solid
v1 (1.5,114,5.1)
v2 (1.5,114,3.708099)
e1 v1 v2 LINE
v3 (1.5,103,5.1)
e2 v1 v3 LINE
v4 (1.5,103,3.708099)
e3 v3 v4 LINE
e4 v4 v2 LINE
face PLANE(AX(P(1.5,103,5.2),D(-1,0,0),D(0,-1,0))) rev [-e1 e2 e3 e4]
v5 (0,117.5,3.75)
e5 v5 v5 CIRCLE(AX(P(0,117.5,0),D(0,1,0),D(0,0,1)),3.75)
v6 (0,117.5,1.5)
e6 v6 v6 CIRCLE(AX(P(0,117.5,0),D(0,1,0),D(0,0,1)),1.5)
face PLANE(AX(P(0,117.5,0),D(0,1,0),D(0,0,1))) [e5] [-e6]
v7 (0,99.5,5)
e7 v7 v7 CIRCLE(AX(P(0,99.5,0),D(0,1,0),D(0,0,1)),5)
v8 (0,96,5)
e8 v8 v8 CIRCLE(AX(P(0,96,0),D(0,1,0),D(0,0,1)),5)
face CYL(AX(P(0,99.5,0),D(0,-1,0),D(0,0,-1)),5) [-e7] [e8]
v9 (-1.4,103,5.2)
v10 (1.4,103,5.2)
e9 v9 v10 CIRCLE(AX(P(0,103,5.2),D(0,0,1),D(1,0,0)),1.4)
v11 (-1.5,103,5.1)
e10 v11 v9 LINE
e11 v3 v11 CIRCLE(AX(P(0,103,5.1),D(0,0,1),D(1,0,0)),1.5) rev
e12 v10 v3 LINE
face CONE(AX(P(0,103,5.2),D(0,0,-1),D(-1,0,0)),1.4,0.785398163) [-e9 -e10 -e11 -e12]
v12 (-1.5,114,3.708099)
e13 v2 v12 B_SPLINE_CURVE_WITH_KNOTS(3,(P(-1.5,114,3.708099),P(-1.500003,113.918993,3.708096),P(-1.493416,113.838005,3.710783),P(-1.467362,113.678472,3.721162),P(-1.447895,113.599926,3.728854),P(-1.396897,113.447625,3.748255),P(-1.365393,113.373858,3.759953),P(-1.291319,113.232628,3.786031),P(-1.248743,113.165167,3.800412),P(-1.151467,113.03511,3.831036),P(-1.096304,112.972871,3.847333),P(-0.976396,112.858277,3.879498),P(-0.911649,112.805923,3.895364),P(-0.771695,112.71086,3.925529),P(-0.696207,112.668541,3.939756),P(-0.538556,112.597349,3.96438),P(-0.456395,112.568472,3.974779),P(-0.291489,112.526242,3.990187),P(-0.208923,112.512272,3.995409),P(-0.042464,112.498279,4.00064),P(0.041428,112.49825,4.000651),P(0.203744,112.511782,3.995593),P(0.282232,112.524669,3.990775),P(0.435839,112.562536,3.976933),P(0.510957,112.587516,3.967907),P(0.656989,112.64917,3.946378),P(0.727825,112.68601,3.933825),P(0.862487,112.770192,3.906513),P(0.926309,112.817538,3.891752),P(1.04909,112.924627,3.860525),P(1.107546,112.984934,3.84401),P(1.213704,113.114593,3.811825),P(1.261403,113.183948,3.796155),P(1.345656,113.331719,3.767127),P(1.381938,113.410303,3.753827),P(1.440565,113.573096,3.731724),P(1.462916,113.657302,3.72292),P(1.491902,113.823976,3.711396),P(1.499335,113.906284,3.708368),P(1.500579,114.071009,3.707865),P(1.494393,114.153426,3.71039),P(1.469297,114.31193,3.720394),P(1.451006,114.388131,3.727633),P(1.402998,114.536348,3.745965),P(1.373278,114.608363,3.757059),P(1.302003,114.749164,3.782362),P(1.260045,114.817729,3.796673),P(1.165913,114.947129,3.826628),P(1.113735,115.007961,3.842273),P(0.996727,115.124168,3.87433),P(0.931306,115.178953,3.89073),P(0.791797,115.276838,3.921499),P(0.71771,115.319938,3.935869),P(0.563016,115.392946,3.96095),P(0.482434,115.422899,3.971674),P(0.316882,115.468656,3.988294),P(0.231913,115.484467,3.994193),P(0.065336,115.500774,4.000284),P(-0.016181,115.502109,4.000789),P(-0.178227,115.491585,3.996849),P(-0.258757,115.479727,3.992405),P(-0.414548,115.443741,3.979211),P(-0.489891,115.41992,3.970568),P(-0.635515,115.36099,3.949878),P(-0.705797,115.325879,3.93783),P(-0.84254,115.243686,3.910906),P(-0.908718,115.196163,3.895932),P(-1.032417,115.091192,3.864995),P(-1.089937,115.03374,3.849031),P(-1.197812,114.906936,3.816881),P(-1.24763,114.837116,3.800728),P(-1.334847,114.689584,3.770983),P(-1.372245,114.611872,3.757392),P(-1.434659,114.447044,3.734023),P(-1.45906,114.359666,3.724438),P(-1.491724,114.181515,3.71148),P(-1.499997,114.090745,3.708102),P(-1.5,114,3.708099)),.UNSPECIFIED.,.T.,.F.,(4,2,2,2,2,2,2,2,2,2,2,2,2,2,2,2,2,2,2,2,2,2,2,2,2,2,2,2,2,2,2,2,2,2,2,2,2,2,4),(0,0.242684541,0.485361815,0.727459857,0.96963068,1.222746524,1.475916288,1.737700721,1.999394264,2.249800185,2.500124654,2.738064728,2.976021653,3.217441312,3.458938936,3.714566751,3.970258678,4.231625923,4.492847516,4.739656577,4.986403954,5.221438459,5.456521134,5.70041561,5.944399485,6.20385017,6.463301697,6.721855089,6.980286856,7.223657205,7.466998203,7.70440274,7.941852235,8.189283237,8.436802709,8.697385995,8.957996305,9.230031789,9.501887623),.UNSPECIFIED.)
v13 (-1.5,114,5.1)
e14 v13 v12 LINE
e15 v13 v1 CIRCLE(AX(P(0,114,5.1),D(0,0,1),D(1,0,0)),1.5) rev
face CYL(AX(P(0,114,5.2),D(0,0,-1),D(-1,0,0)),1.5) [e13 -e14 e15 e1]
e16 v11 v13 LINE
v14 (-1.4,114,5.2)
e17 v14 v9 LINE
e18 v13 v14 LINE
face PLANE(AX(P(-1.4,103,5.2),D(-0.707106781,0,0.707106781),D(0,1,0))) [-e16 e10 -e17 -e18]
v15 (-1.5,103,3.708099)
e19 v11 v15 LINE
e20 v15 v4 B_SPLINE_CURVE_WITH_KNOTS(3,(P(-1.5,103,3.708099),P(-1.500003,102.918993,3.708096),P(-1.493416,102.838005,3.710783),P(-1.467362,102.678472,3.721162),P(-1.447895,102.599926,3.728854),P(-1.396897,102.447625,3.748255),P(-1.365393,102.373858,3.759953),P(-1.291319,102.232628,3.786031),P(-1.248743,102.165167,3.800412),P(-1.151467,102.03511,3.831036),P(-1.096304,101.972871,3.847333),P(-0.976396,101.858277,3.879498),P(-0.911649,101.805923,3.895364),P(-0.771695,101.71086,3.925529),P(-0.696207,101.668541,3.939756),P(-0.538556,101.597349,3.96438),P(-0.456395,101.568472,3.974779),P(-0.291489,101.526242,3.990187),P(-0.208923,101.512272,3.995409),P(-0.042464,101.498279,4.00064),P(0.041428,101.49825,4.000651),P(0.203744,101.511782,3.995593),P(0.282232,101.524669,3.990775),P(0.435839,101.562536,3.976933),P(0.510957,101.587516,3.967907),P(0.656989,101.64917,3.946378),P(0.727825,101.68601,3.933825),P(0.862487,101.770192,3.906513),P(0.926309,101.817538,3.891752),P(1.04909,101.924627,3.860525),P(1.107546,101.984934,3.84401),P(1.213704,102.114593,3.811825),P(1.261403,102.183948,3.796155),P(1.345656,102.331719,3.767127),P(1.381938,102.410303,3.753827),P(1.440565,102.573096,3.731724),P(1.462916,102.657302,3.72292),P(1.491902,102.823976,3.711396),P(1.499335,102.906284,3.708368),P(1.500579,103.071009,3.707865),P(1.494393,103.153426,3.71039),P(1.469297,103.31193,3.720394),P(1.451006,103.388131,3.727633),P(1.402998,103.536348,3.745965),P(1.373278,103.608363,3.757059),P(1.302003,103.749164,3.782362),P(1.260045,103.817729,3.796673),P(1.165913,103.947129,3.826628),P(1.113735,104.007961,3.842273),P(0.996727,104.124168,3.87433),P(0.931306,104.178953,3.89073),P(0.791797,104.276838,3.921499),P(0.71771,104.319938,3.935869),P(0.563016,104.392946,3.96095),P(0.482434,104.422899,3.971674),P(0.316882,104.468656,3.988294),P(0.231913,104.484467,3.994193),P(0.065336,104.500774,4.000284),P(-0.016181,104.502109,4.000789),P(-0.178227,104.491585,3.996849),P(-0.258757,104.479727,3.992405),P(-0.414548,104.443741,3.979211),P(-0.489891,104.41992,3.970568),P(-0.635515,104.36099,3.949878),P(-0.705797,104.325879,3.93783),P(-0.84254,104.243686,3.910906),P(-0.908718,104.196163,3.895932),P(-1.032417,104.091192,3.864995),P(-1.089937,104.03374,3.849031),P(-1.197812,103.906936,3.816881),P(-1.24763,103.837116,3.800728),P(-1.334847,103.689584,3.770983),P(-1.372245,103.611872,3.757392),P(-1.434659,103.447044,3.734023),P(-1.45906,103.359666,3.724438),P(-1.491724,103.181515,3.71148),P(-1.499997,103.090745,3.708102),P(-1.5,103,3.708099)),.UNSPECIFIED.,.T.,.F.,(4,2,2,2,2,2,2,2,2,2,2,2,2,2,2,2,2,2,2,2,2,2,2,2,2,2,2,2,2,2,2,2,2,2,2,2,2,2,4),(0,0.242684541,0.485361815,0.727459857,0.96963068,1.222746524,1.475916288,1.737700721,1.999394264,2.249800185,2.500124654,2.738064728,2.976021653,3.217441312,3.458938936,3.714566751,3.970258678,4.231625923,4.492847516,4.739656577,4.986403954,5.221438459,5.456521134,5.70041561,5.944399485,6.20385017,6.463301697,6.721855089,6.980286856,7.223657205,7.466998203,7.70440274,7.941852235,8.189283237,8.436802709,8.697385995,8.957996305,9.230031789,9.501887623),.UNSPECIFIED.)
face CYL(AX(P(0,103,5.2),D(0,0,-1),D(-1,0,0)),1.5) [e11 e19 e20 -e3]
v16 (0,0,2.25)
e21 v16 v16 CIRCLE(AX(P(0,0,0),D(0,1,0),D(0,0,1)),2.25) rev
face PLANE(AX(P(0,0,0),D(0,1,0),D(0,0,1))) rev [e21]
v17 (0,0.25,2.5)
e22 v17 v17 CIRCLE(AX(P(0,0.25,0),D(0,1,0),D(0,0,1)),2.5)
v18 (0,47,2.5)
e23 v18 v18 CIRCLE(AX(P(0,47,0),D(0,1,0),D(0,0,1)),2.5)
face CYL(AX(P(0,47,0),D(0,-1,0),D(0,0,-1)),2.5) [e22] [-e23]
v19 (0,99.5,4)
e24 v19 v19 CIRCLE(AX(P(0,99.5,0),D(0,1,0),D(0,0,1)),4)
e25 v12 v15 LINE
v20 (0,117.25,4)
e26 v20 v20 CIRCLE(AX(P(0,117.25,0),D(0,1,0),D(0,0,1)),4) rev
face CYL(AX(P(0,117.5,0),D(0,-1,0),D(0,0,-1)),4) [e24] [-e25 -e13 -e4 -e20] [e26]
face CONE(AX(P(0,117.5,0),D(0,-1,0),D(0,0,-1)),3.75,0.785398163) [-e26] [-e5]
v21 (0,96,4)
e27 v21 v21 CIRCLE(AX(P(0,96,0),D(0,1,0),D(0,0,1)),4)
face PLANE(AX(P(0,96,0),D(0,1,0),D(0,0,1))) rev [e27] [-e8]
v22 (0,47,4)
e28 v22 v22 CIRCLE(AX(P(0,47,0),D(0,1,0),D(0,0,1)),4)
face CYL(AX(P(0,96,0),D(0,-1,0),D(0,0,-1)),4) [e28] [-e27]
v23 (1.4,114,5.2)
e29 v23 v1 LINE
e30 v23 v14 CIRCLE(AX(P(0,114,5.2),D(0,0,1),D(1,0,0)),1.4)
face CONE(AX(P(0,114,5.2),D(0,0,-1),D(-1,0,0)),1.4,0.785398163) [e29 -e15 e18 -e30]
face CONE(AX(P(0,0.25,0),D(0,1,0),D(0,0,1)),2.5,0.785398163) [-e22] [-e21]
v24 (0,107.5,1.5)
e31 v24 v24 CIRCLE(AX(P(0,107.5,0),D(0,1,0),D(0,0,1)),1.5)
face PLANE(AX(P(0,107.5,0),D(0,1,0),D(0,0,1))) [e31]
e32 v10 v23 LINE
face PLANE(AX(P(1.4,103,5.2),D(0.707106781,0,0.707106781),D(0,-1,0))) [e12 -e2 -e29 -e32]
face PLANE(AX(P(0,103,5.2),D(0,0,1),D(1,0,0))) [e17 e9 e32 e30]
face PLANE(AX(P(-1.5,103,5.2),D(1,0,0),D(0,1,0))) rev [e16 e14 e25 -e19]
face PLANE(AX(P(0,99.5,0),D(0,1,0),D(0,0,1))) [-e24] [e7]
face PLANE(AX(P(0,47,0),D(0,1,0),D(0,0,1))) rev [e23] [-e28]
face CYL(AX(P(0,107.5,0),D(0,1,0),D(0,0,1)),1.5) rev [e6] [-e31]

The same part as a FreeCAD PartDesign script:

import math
import FreeCAD as App
import Part
import Sketcher


def edges_at(feature, points):
    """Names of the edges that pass closest to the given points."""
    edges = feature.Shape.Edges
    near = lambda p: min(range(len(edges)), key=lambda i: edges[i].distToShape(Part.Vertex(*p))[0])
    return sorted({f"Edge{near(p) + 1}" for p in points})

doc = App.newDocument("Part")
body = doc.addObject("PartDesign::Body", "Body")

sketch1 = doc.addObject("Sketcher::SketchObject", "Sketch")
body.addObject(sketch1)
sketch1.AttachmentSupport = (doc.XZ_Plane, [""])
sketch1.MapMode = "FlatFace"
sketch1.addGeometry(Part.Circle(App.Vector(0, 0, 0), App.Vector(0, 0, 1), 2.5), False)
sketch1.addConstraint([
    Sketcher.Constraint("Coincident", 0, 3, -1, 1),
    Sketcher.Constraint("Diameter", 0, 5.0),
])
pad1 = doc.addObject("PartDesign::Pad", "Pad")
body.addObject(pad1)
pad1.Profile = sketch1
pad1.Length = 47
pad1.Reversed = True

sketch2 = doc.addObject("Sketcher::SketchObject", "Sketch001")
body.addObject(sketch2)
sketch2.AttachmentSupport = (doc.XZ_Plane, [""])
sketch2.MapMode = "FlatFace"
sketch2.AttachmentOffset = App.Placement(App.Vector(0, 0, -47), App.Rotation())
sketch2.addGeometry(Part.Circle(App.Vector(0, 0, 0), App.Vector(0, 0, 1), 4), False)
sketch2.addConstraint([
    Sketcher.Constraint("Coincident", 0, 3, -1, 1),
    Sketcher.Constraint("Diameter", 0, 8.0),
])
pad2 = doc.addObject("PartDesign::Pad", "Pad001")
body.addObject(pad2)
pad2.Profile = sketch2
pad2.Length = 49
pad2.Reversed = True

sketch3 = doc.addObject("Sketcher::SketchObject", "Sketch002")
body.addObject(sketch3)
sketch3.AttachmentSupport = (doc.XZ_Plane, [""])
sketch3.MapMode = "FlatFace"
sketch3.AttachmentOffset = App.Placement(App.Vector(0, 0, -96), App.Rotation())
sketch3.addGeometry(Part.Circle(App.Vector(0, 0, 0), App.Vector(0, 0, 1), 5), False)
sketch3.addConstraint([
    Sketcher.Constraint("Coincident", 0, 3, -1, 1),
    Sketcher.Constraint("Diameter", 0, 10.0),
])
pad3 = doc.addObject("PartDesign::Pad", "Pad002")
body.addObject(pad3)
pad3.Profile = sketch3
pad3.Length = 3.5
pad3.Reversed = True

sketch4 = doc.addObject("Sketcher::SketchObject", "Sketch003")
body.addObject(sketch4)
sketch4.AttachmentSupport = (doc.XZ_Plane, [""])
sketch4.MapMode = "FlatFace"
sketch4.AttachmentOffset = App.Placement(App.Vector(0, 0, -99.5), App.Rotation())
sketch4.addGeometry(Part.Circle(App.Vector(0, 0, 0), App.Vector(0, 0, 1), 4), False)
sketch4.addConstraint([
    Sketcher.Constraint("Coincident", 0, 3, -1, 1),
    Sketcher.Constraint("Diameter", 0, 8.0),
])
pad4 = doc.addObject("PartDesign::Pad", "Pad003")
body.addObject(pad4)
pad4.Profile = sketch4
pad4.Length = 18
pad4.Reversed = True

sketch5 = doc.addObject("Sketcher::SketchObject", "Sketch004")
body.addObject(sketch5)
sketch5.AttachmentSupport = (doc.XY_Plane, [""])
sketch5.MapMode = "FlatFace"
sketch5.AttachmentOffset = App.Placement(App.Vector(0, 0, 2.2), App.Rotation())
sketch5.addGeometry([
    Part.LineSegment(App.Vector(-1.5, 114, 0), App.Vector(-1.5, 103, 0)),
    Part.ArcOfCircle(Part.Circle(App.Vector(0, 103, 0), App.Vector(0, 0, 1), 1.5), math.radians(180), math.radians(360)),
    Part.LineSegment(App.Vector(1.5, 103, 0), App.Vector(1.5, 114, 0)),
    Part.ArcOfCircle(Part.Circle(App.Vector(0, 114, 0), App.Vector(0, 0, 1), 1.5), math.radians(0), math.radians(180)),
], False)
sketch5.addConstraint([
    Sketcher.Constraint("Tangent", 0, 2, 1, 1),
    Sketcher.Constraint("Tangent", 1, 2, 2, 1),
    Sketcher.Constraint("Tangent", 2, 2, 3, 1),
    Sketcher.Constraint("Tangent", 3, 2, 0, 1),
    Sketcher.Constraint("Vertical", 0),
    Sketcher.Constraint("Vertical", 2),
    Sketcher.Constraint("PointOnObject", 1, 3, -2),
    Sketcher.Constraint("Radius", 1, 1.5),
    Sketcher.Constraint("DistanceY", 0, 2, 0, 1, 11.0),
    Sketcher.Constraint("DistanceY", -1, 1, 1, 3, 103.0),
])
pad5 = doc.addObject("PartDesign::Pad", "Pad004")
body.addObject(pad5)
pad5.Profile = sketch5
pad5.Length = 3
doc.recompute()

chamfer = doc.addObject("PartDesign::Chamfer", "Chamfer")
body.addObject(chamfer)
chamfer.Base = (pad5, edges_at(pad5, [(0, 117.5, -4), (0, 0, -2.5)]))
chamfer.Size = 0.25
doc.recompute()

chamfer2 = doc.addObject("PartDesign::Chamfer", "Chamfer001")
body.addObject(chamfer2)
chamfer2.Base = (chamfer, edges_at(chamfer, [
    (0, 101.5, 5.2),
    (1.5, 108.5, 5.2),
    (0, 115.5, 5.2),
    (-1.5, 108.5, 5.2),
]))
chamfer2.Size = 0.1

sketch6 = doc.addObject("Sketcher::SketchObject", "Sketch005")
body.addObject(sketch6)
sketch6.AttachmentSupport = (doc.XZ_Plane, [""])
sketch6.MapMode = "FlatFace"
sketch6.AttachmentOffset = App.Placement(App.Vector(0, 0, -117.5), App.Rotation())
sketch6.addGeometry(Part.Circle(App.Vector(0, 0, 0), App.Vector(0, 0, 1), 1.5), False)
sketch6.addConstraint([
    Sketcher.Constraint("Coincident", 0, 3, -1, 1),
    Sketcher.Constraint("Diameter", 0, 3.0),
])
pocket1 = doc.addObject("PartDesign::Pocket", "Pocket")
body.addObject(pocket1)
pocket1.Profile = sketch6
pocket1.Length = 10
pocket1.Reversed = True

doc.recompute()
